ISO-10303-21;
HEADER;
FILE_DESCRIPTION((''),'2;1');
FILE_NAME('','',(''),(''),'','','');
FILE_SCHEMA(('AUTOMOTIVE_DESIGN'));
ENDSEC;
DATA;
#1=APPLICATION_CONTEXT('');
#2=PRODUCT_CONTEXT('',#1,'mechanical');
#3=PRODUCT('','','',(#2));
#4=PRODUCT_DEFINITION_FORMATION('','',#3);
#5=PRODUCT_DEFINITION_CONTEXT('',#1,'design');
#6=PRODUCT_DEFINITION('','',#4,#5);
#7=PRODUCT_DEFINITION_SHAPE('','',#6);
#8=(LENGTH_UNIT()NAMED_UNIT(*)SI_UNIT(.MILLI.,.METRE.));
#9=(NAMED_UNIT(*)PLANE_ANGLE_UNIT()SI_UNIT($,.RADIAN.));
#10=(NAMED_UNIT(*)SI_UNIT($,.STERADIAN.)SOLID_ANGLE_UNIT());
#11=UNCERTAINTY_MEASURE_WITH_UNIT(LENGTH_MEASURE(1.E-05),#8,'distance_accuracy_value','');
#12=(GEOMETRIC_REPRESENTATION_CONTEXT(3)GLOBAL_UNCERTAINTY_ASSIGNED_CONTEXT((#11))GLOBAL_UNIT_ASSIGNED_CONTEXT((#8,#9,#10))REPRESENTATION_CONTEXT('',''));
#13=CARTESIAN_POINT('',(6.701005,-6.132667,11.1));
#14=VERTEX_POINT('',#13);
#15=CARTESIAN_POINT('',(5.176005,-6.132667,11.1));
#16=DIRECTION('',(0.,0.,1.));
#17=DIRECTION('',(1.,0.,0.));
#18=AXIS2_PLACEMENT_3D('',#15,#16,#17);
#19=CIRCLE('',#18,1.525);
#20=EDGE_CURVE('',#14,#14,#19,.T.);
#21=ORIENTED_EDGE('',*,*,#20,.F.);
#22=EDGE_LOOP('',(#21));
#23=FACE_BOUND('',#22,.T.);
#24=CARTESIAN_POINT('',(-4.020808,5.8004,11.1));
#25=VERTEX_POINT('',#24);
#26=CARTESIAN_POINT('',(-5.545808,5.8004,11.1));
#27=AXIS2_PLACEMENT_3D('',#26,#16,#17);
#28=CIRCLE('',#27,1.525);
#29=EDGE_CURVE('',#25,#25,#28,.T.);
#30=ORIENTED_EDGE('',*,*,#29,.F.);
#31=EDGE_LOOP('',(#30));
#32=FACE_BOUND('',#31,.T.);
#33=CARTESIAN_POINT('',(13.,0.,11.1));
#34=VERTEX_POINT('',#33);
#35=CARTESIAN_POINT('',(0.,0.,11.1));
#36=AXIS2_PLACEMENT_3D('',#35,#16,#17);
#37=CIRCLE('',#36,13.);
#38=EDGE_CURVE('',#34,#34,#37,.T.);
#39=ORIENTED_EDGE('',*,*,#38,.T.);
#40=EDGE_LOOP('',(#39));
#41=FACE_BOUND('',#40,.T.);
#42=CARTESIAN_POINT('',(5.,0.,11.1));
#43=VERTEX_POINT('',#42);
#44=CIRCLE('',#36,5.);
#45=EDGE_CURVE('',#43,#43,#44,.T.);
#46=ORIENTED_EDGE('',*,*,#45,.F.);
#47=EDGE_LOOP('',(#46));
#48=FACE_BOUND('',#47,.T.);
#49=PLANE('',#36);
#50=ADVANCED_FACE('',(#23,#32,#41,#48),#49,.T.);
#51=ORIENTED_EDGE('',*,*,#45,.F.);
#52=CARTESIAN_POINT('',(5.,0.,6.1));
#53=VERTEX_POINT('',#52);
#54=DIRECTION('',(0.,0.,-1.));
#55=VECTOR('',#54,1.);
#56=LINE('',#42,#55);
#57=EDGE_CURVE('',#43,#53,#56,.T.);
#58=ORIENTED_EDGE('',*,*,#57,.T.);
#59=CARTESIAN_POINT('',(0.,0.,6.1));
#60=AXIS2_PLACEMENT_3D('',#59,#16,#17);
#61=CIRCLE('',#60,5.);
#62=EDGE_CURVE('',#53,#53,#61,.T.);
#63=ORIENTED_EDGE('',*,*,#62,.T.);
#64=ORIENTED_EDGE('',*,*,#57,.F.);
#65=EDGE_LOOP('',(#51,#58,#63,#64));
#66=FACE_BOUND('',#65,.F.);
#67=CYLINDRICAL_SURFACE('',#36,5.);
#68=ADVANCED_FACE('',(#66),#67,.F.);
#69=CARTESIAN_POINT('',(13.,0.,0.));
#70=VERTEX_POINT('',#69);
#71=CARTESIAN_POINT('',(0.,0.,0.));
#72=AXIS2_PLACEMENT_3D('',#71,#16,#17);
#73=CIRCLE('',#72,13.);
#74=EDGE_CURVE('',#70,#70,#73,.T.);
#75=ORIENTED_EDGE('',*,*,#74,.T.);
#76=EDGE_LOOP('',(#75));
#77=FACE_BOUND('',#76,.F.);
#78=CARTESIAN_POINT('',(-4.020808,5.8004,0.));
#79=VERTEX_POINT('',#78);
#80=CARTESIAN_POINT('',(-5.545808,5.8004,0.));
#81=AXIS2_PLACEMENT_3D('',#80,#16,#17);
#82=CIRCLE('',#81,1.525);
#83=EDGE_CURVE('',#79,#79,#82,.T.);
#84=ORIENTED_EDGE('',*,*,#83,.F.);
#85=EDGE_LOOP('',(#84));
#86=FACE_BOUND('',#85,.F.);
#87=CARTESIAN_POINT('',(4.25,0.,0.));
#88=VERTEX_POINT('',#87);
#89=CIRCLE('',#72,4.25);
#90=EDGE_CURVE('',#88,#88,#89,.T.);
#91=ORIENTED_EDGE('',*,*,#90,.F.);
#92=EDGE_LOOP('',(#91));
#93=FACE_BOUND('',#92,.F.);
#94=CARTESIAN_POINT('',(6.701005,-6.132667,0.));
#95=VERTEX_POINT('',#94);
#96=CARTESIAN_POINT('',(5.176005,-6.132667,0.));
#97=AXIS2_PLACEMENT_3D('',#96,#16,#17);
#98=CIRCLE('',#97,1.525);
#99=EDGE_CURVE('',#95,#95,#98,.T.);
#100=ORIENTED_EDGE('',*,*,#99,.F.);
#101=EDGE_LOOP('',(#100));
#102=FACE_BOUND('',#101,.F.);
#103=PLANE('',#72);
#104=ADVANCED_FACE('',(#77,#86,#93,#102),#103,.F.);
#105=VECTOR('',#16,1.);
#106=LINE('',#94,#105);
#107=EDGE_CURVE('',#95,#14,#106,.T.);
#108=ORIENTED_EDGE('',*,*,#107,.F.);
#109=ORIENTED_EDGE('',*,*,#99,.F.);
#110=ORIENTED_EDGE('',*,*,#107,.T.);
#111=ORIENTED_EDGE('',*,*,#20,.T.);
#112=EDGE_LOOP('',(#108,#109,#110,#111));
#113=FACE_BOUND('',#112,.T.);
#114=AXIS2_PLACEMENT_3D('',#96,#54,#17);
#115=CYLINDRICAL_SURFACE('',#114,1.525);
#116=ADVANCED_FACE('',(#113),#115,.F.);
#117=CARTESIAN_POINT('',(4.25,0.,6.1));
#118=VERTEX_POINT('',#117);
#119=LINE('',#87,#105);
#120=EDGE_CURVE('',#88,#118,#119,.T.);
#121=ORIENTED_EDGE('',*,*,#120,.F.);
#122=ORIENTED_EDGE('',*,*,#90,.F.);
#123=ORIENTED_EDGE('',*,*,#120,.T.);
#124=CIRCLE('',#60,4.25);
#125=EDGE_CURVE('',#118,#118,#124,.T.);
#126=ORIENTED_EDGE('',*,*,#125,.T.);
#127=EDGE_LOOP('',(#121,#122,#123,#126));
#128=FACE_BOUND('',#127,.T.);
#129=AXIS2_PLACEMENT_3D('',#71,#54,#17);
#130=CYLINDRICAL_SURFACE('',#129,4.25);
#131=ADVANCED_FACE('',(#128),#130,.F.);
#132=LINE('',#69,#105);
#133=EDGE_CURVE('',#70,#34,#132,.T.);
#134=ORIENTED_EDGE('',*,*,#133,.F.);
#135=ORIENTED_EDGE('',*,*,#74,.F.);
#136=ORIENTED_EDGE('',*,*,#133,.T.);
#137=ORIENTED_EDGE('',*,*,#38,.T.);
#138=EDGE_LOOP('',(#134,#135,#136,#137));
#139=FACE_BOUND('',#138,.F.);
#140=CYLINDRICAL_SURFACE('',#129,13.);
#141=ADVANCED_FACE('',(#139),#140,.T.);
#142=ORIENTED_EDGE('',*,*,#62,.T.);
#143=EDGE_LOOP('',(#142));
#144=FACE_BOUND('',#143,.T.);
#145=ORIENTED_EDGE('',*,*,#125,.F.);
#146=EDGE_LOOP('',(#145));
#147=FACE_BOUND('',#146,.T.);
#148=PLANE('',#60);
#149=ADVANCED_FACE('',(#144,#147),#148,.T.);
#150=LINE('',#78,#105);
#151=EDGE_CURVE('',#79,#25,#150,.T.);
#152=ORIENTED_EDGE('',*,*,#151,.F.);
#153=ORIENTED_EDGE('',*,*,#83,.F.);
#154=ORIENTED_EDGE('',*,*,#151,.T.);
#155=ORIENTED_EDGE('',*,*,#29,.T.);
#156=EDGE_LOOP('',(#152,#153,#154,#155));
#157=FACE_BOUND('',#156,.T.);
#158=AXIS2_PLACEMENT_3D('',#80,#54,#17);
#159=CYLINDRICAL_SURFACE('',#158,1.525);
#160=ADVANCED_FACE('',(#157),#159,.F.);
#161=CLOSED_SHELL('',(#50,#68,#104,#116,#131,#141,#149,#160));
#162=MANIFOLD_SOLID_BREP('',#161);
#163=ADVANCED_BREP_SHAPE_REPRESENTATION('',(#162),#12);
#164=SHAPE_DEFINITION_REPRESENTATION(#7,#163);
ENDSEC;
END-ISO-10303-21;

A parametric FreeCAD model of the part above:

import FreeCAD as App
import Part
import Sketcher
Q = App.Units.Quantity

doc = App.newDocument("Part")
body = doc.addObject("PartDesign::Body", "Body")

# Sketch on XY plane
sketch1 = doc.addObject("Sketcher::SketchObject", "Sketch")
body.addObject(sketch1)
sketch1.AttachmentSupport = (doc.XY_Plane, [""])
sketch1.MapMode = "FlatFace"
sketch1.addGeometry([
    Part.Circle(App.Vector(0, 0, 0), App.Vector(0, 0, 1), 13),
    Part.Circle(App.Vector(5.2, -6.1, 0), App.Vector(0, 0, 1), 1.5),
    Part.Circle(App.Vector(-5.5, 5.8, 0), App.Vector(0, 0, 1), 1.5),
    Part.Circle(App.Vector(0, 0, 0), App.Vector(0, 0, 1), 4.2),
], False)
sketch1.addConstraint([
    Sketcher.Constraint("Coincident", 0, 3, -1, 1),
    Sketcher.Constraint("Coincident", 3, 3, -1, 1),
    Sketcher.Constraint("Equal", 1, 2),
    Sketcher.Constraint("Diameter", 0, Q("26 mm")),
    Sketcher.Constraint("Diameter", 3, Q("8.5 mm")),
    Sketcher.Constraint("Diameter", 1, Q("3.05 mm")),
    Sketcher.Constraint("DistanceY", -1, 1, 2, 3, Q("5.8004 mm")),
    Sketcher.Constraint("DistanceX", -1, 1, 1, 3, Q("5.176005 mm")),
    Sketcher.Constraint("DistanceY", 1, 3, -1, 1, Q("6.132667 mm")),
    Sketcher.Constraint("DistanceX", 2, 3, -1, 1, Q("5.545808 mm")),
])
pad1 = doc.addObject("PartDesign::Pad", "Pad")
body.addObject(pad1)
pad1.Profile = sketch1
pad1.Length = 11.1

# Sketch on XY plane
sketch2 = doc.addObject("Sketcher::SketchObject", "Sketch001")
body.addObject(sketch2)
sketch2.AttachmentSupport = (doc.XY_Plane, [""])
sketch2.MapMode = "FlatFace"
sketch2.AttachmentOffset = App.Placement(App.Vector(0, 0, 11.1), App.Rotation())
sketch2.addGeometry([
    Part.Circle(App.Vector(0, 0, 0), App.Vector(0, 0, 1), 5),
    Part.Circle(App.Vector(0, 0, 0), App.Vector(0, 0, 1), 4.2),
], False)
sketch2.addConstraint([
    Sketcher.Constraint("Coincident", 0, 3, -1, 1),
    Sketcher.Constraint("Coincident", 1, 3, -1, 1),
    Sketcher.Constraint("Diameter", 0, Q("10 mm")),
    Sketcher.Constraint("Diameter", 1, Q("8.5 mm")),
])
pocket1 = doc.addObject("PartDesign::Pocket", "Pocket")
body.addObject(pocket1)
pocket1.Profile = sketch2
pocket1.Length = 5

doc.recompute()
